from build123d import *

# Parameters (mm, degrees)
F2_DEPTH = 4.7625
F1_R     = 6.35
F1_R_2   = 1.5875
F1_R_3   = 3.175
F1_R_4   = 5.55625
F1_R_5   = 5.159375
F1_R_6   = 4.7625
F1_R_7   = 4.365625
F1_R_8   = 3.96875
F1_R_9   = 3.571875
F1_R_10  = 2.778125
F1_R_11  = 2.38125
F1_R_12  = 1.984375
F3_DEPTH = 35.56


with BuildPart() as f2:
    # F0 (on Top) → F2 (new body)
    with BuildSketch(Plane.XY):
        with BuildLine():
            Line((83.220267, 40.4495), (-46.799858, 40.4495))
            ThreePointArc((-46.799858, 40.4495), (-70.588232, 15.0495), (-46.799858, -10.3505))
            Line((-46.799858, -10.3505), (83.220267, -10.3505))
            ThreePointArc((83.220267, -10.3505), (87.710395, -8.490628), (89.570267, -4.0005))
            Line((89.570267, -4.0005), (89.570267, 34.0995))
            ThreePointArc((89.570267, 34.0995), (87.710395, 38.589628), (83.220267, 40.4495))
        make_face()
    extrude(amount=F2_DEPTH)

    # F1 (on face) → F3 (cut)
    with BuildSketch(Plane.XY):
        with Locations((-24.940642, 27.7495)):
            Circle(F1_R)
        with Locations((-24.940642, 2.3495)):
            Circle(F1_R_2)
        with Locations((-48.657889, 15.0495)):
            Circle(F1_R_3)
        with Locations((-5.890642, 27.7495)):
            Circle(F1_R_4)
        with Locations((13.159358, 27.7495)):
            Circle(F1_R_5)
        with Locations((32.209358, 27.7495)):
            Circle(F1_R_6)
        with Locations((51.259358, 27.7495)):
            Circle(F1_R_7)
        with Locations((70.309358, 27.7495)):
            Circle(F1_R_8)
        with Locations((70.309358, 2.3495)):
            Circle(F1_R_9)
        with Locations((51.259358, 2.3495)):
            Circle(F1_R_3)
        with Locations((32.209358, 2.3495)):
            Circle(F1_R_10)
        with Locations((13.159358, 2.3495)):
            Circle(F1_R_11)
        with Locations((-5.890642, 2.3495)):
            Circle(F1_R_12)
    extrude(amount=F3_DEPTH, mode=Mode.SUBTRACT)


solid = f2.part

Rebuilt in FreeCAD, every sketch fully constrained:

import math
import FreeCAD as App
import Part
import Sketcher
from FreeCAD import Vector
Q = App.Units.Quantity

doc = App.newDocument("Part")
body = doc.addObject("PartDesign::Body", "Body")

sketch1 = body.newObject("Sketcher::SketchObject", "Sketch")
sketch1.AttachmentSupport = (doc.getObject("XY_Plane"), [""])
sketch1.MapMode = "FlatFace"
sketch1.addGeometry([
    Part.LineSegment(Vector(83, 40, 0), Vector(-47, 40, 0)),
    Part.ArcOfCircle(Part.Circle(Vector(-45, 15, 0), Vector(0, 0, 1), 25), math.radians(94), math.radians(266)),
    Part.LineSegment(Vector(-47, -10, 0), Vector(83, -10, 0)),
    Part.ArcOfCircle(Part.Circle(Vector(83, -4, 0), Vector(0, 0, 1), 6), math.radians(-90), math.radians(0)),
    Part.LineSegment(Vector(90, -4, 0), Vector(90, 34, 0)),
    Part.ArcOfCircle(Part.Circle(Vector(83, 34, 0), Vector(0, 0, 1), 6), math.radians(0), math.radians(90)),
], False)
sketch1.addConstraint([
    Sketcher.Constraint("Coincident", 0, 2, 1, 1),
    Sketcher.Constraint("Coincident", 1, 2, 2, 1),
    Sketcher.Constraint("Tangent", 2, 2, 3, 1),
    Sketcher.Constraint("Tangent", 3, 2, 4, 1),
    Sketcher.Constraint("Tangent", 4, 2, 5, 1),
    Sketcher.Constraint("Tangent", 5, 2, 0, 1),
    Sketcher.Constraint("Horizontal", 0),
    Sketcher.Constraint("Horizontal", 2),
    Sketcher.Constraint("Vertical", 4),
    Sketcher.Constraint("Equal", 3, 5),
    Sketcher.Constraint("Vertical", 0, 2, 1, 2),
    Sketcher.Constraint("Radius", 3, Q("0.25 in")),
    Sketcher.Constraint("DistanceY", 4, 1, 4, 2, Q("1.5 in")),
    Sketcher.Constraint("DistanceY", -1, 1, 1, 3, Q("0.5925 in")),
    Sketcher.Constraint("Radius", 1, Q("25.454593 mm")),
    Sketcher.Constraint("DistanceX", 0, 2, 0, 1, Q("130.020125 mm")),
    Sketcher.Constraint("DistanceX", 1, 3, -1, 1, Q("45.133639 mm")),
])
pad1 = body.newObject("PartDesign::Pad", "Pad")
pad1.Profile = sketch1
pad1.Length = Q("0.1875 in")

sketch2 = body.newObject("Sketcher::SketchObject", "Sketch001")
sketch2.AttachmentSupport = (doc.getObject("XY_Plane"), [""])
sketch2.MapMode = "FlatFace"
sketch2.addGeometry([
    Part.Circle(Vector(-24.9, 27.7, 0), Vector(0, 0, 1), 6.3),
    Part.Circle(Vector(-24.9, 2.3, 0), Vector(0, 0, 1), 1.6),
    Part.Circle(Vector(-48.7, 15, 0), Vector(0, 0, 1), 3.2),
    Part.Circle(Vector(-5.9, 27.7, 0), Vector(0, 0, 1), 5.6),
    Part.Circle(Vector(13.2, 27.7, 0), Vector(0, 0, 1), 5.2),
    Part.Circle(Vector(32.2, 27.7, 0), Vector(0, 0, 1), 4.8),
    Part.Circle(Vector(51.3, 27.7, 0), Vector(0, 0, 1), 4.4),
    Part.Circle(Vector(70.3, 27.7, 0), Vector(0, 0, 1), 4),
    Part.Circle(Vector(70.3, 2.3, 0), Vector(0, 0, 1), 3.6),
    Part.Circle(Vector(51.3, 2.3, 0), Vector(0, 0, 1), 3.2),
    Part.Circle(Vector(32.2, 2.3, 0), Vector(0, 0, 1), 2.8),
    Part.Circle(Vector(13.2, 2.3, 0), Vector(0, 0, 1), 2.4),
    Part.Circle(Vector(-5.9, 2.3, 0), Vector(0, 0, 1), 2),
], False)
sketch2.addConstraint([
    Sketcher.Constraint("Equal", 2, 9),
    Sketcher.Constraint("Horizontal", 0, 3, 3, 3),
    Sketcher.Constraint("Horizontal", 3, 3, 4, 3),
    Sketcher.Constraint("Horizontal", 4, 3, 5, 3),
    Sketcher.Constraint("Horizontal", 5, 3, 6, 3),
    Sketcher.Constraint("Horizontal", 6, 3, 7, 3),
    Sketcher.Constraint("Horizontal", 1, 3, 8, 3),
    Sketcher.Constraint("Horizontal", 8, 3, 9, 3),
    Sketcher.Constraint("Horizontal", 9, 3, 10, 3),
    Sketcher.Constraint("Horizontal", 10, 3, 11, 3),
    Sketcher.Constraint("Horizontal", 11, 3, 12, 3),
    Sketcher.Constraint("Vertical", 0, 3, 1, 3),
    Sketcher.Constraint("Vertical", 7, 3, 8, 3),
    Sketcher.Constraint("Vertical", 6, 3, 9, 3),
    Sketcher.Constraint("Vertical", 5, 3, 10, 3),
    Sketcher.Constraint("Vertical", 4, 3, 11, 3),
    Sketcher.Constraint("Vertical", 3, 3, 12, 3),
    Sketcher.Constraint("Diameter", 0, Q("0.5 in")),
    Sketcher.Constraint("Diameter", 2, Q("0.25 in")),
    Sketcher.Constraint("Diameter", 1, Q("0.125 in")),
    Sketcher.Constraint("Diameter", 3, Q("0.4375 in")),
    Sketcher.Constraint("Diameter", 4, Q("0.40625 in")),
    Sketcher.Constraint("Diameter", 5, Q("0.375 in")),
    Sketcher.Constraint("Diameter", 6, Q("0.34375 in")),
    Sketcher.Constraint("Diameter", 7, Q("0.3125 in")),
    Sketcher.Constraint("Diameter", 8, Q("0.28125 in")),
    Sketcher.Constraint("Diameter", 10, Q("0.21875 in")),
    Sketcher.Constraint("Diameter", 11, Q("0.1875 in")),
    Sketcher.Constraint("Diameter", 12, Q("0.15625 in")),
    Sketcher.Constraint("DistanceY", 1, 3, 0, 3, Q("1 in")),
    Sketcher.Constraint("DistanceX", 0, 3, 6, 3, Q("3 in")),
    Sketcher.Constraint("DistanceX", 3, 3, 7, 3, Q("3 in")),
    Sketcher.Constraint("DistanceY", 2, 3, 0, 3, Q("0.5 in")),
    Sketcher.Constraint("DistanceX", 0, 3, 4, 3, Q("1.5 in")),
    Sketcher.Constraint("DistanceX", 3, 3, 5, 3, Q("1.5 in")),
    Sketcher.Constraint("DistanceX", 0, 3, 3, 3, Q("0.75 in")),
    Sketcher.Constraint("DistanceY", -1, 1, 0, 3, Q("1.0925 in")),
    Sketcher.Constraint("DistanceX", 2, 3, -1, 1, Q("48.657889 mm")),
    Sketcher.Constraint("DistanceX", 3, 3, -1, 1, Q("5.890642 mm")),
])
pocket1 = body.newObject("PartDesign::Pocket", "Pocket")
pocket1.Profile = sketch2
pocket1.Length = Q("1.4 in")
pocket1.Reversed = True

doc.recompute()
